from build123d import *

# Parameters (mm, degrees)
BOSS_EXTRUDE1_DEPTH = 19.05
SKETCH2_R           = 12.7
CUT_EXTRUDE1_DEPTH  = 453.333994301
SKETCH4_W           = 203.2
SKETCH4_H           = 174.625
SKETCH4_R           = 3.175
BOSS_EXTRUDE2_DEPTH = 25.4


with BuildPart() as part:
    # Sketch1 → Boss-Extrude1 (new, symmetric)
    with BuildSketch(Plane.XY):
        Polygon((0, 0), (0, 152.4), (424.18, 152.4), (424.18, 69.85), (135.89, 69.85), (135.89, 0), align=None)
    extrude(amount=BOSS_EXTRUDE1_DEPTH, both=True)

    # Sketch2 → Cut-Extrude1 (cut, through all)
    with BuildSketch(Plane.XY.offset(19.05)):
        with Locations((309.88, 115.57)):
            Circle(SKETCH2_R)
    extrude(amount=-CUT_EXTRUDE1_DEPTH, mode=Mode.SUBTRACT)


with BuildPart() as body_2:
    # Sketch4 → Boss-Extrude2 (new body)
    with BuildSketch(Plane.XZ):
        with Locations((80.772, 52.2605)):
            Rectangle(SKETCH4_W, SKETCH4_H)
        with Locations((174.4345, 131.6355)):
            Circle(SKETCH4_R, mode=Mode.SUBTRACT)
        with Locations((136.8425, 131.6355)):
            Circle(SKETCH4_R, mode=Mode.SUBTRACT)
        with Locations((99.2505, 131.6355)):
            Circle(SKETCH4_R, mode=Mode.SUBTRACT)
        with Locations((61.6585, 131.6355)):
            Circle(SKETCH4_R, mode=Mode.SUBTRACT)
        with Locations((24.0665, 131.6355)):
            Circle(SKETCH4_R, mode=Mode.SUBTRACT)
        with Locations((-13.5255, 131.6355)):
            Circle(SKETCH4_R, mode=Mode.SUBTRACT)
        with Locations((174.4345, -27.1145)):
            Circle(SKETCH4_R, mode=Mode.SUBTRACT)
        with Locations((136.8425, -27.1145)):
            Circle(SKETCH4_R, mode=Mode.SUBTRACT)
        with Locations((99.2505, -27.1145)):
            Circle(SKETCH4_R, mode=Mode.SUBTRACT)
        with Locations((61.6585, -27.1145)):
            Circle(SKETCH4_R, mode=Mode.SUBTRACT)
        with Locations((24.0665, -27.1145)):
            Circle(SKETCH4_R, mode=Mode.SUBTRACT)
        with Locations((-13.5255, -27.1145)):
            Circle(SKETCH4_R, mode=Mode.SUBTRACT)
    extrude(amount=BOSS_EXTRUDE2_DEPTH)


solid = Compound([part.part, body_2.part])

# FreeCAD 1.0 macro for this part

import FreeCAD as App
import Part
import Sketcher

V = App.Vector
Q = App.Units.Quantity


def add_polygon(sketch, points):
    """Adds a closed chain of lines whose ends are joined by coincident constraints."""
    first, n = sketch.GeometryCount, len(points)
    for a, b in zip(points, points[1:] + points[:1]):
        sketch.addGeometry(Part.LineSegment(App.Vector(*a, 0), App.Vector(*b, 0)), False)
    for i in range(n):
        sketch.addConstraint(Sketcher.Constraint("Coincident", first + i, 2, first + (i + 1) % n, 1))

doc = App.newDocument("Part")
params = doc.addObject("Spreadsheet::Sheet", "Params")
for row, (alias, value) in enumerate([
    ("sketch1_height", "6 in"),
    ("sketch1_width", "16.7 in"),
    ("sketch1_width2", "5.35 in"),
    ("sketch1_height2", "2.75 in"),
    ("pad1_length", "1.5 in"),
    ("sketch2_diameter", "1 in"),
    ("sketch3_diameter", "0.25 in"),
    ("sketch3_width", "8 in"),
    ("sketch3_height", "6.875 in"),
    ("pad2_length", "1 in"),
], start=1):
    params.set(f"A{row}", alias)
    params.set(f"B{row}", "=" + value)
    params.setAlias(f"B{row}", alias)

body = doc.addObject("PartDesign::Body", "Body")

sketch1 = body.newObject("Sketcher::SketchObject", "Sketch")
sketch1.AttachmentSupport = (doc.getObject("XY_Plane"), [""])
sketch1.MapMode = "FlatFace"
add_polygon(sketch1, [(0, 152), (0, 0), (136, 0), (136, 70), (424, 70), (424, 152)])
sketch1.addConstraint([
    Sketcher.Constraint("Vertical", 0),
    Sketcher.Constraint("Horizontal", 1),
    Sketcher.Constraint("Vertical", 2),
    Sketcher.Constraint("Horizontal", 3),
    Sketcher.Constraint("Vertical", 4),
    Sketcher.Constraint("Horizontal", 5),
    Sketcher.Constraint("Coincident", 0, 2, -1, 1),
    Sketcher.Constraint("DistanceY", 0, 2, 0, 1, Q("6 in")),
    Sketcher.Constraint("DistanceX", 5, 2, 5, 1, Q("16.7 in")),
    Sketcher.Constraint("DistanceX", 1, 1, 1, 2, Q("5.35 in")),
    Sketcher.Constraint("DistanceY", 2, 1, 2, 2, Q("2.75 in")),
])
sketch1.setExpression("Constraints[13]", "Params.sketch1_height")
sketch1.setExpression("Constraints[14]", "Params.sketch1_width")
sketch1.setExpression("Constraints[15]", "Params.sketch1_width2")
sketch1.setExpression("Constraints[16]", "Params.sketch1_height2")
pad1 = body.newObject("PartDesign::Pad", "Pad")
pad1.Profile = sketch1
pad1.setExpression("Length", "Params.pad1_length")
pad1.Midplane = True

sketch2 = body.newObject("Sketcher::SketchObject", "Sketch001")
sketch2.AttachmentSupport = (doc.getObject("XY_Plane"), [""])
sketch2.MapMode = "FlatFace"
sketch2.AttachmentOffset = App.Placement(V(0, 0, 0.75 * 25.4), App.Rotation())
sketch2.addGeometry(Part.Circle(V(310, 116, 0), V(0, 0, 1), 13), False)
sketch2.addConstraint([
    Sketcher.Constraint("Diameter", 0, Q("1 in")),
    Sketcher.Constraint("DistanceX", -1, 1, 0, 3, Q("12.2 in")),
    Sketcher.Constraint("DistanceY", -1, 1, 0, 3, Q("4.55 in")),
])
sketch2.setExpression("Constraints[0]", "Params.sketch2_diameter")
pocket1 = body.newObject("PartDesign::Pocket", "Pocket")
pocket1.Profile = sketch2
pocket1.Type = "ThroughAll"
body2 = doc.addObject("PartDesign::Body", "Body001")

sketch3 = body2.newObject("Sketcher::SketchObject", "Sketch002")
sketch3.AttachmentSupport = (doc.getObject("XZ_Plane001"), [""])
sketch3.MapMode = "FlatFace"
add_polygon(sketch3, [(-20.8, 139.6), (-20.8, -35.1), (182.4, -35.1), (182.4, 139.6)])
sketch3.addGeometry(Part.Circle(V(-13.5, -27.1, 0), V(0, 0, 1), 3.2), False)
sketch3.addGeometry(Part.Circle(V(24.1, -27.1, 0), V(0, 0, 1), 3.2), False)
sketch3.addGeometry(Part.Circle(V(61.7, -27.1, 0), V(0, 0, 1), 3.2), False)
sketch3.addGeometry(Part.Circle(V(99.3, -27.1, 0), V(0, 0, 1), 3.2), False)
sketch3.addGeometry(Part.Circle(V(136.8, -27.1, 0), V(0, 0, 1), 3.2), False)
sketch3.addGeometry(Part.Circle(V(174.4, -27.1, 0), V(0, 0, 1), 3.2), False)
sketch3.addGeometry(Part.Circle(V(-13.5, 131.6, 0), V(0, 0, 1), 3.2), False)
sketch3.addGeometry(Part.Circle(V(24.1, 131.6, 0), V(0, 0, 1), 3.2), False)
sketch3.addGeometry(Part.Circle(V(61.7, 131.6, 0), V(0, 0, 1), 3.2), False)
sketch3.addGeometry(Part.Circle(V(99.3, 131.6, 0), V(0, 0, 1), 3.2), False)
sketch3.addGeometry(Part.Circle(V(136.8, 131.6, 0), V(0, 0, 1), 3.2), False)
sketch3.addGeometry(Part.Circle(V(174.4, 131.6, 0), V(0, 0, 1), 3.2), False)
sketch3.addConstraint([
    Sketcher.Constraint("Vertical", 0),
    Sketcher.Constraint("Horizontal", 1),
    Sketcher.Constraint("Vertical", 2),
    Sketcher.Constraint("Horizontal", 3),
    Sketcher.Constraint("Equal", 4, 5),
    Sketcher.Constraint("Equal", 5, 6),
    Sketcher.Constraint("Equal", 6, 7),
    Sketcher.Constraint("Equal", 7, 8),
    Sketcher.Constraint("Equal", 8, 9),
    Sketcher.Constraint("Equal", 9, 10),
    Sketcher.Constraint("Equal", 10, 11),
    Sketcher.Constraint("Equal", 11, 12),
    Sketcher.Constraint("Equal", 12, 13),
    Sketcher.Constraint("Equal", 13, 14),
    Sketcher.Constraint("Equal", 14, 15),
    Sketcher.Constraint("Horizontal", 4, 3, 5, 3),
    Sketcher.Constraint("Horizontal", 5, 3, 6, 3),
    Sketcher.Constraint("Horizontal", 6, 3, 7, 3),
    Sketcher.Constraint("Horizontal", 7, 3, 8, 3),
    Sketcher.Constraint("Horizontal", 8, 3, 9, 3),
    Sketcher.Constraint("Horizontal", 10, 3, 11, 3),
    Sketcher.Constraint("Horizontal", 11, 3, 12, 3),
    Sketcher.Constraint("Horizontal", 12, 3, 13, 3),
    Sketcher.Constraint("Horizontal", 13, 3, 14, 3),
    Sketcher.Constraint("Horizontal", 14, 3, 15, 3),
    Sketcher.Constraint("Vertical", 4, 3, 10, 3),
    Sketcher.Constraint("Vertical", 5, 3, 11, 3),
    Sketcher.Constraint("Vertical", 6, 3, 12, 3),
    Sketcher.Constraint("Vertical", 7, 3, 13, 3),
    Sketcher.Constraint("Vertical", 8, 3, 14, 3),
    Sketcher.Constraint("Vertical", 9, 3, 15, 3),
    Sketcher.Constraint("Diameter", 4, Q("0.25 in")),
    Sketcher.Constraint("DistanceX", 1, 1, 1, 2, Q("8 in")),
    Sketcher.Constraint("DistanceX", 4, 3, 9, 3, Q("7.4 in")),
    Sketcher.Constraint("DistanceY", 0, 2, 0, 1, Q("6.875 in")),
    Sketcher.Constraint("DistanceX", 0, 2, -1, 1, Q("0.82 in")),
    Sketcher.Constraint("DistanceY", 0, 2, -1, 1, Q("1.38 in")),
    Sketcher.Constraint("DistanceX", 4, 3, 5, 3, Q("1.48 in")),
    Sketcher.Constraint("DistanceX", 5, 3, 6, 3, Q("1.48 in")),
    Sketcher.Constraint("DistanceX", 6, 3, 7, 3, Q("1.48 in")),
    Sketcher.Constraint("DistanceX", 7, 3, 8, 3, Q("1.48 in")),
    Sketcher.Constraint("DistanceY", 4, 3, 10, 3, Q("6.25 in")),
    Sketcher.Constraint("DistanceY", 0, 2, 4, 3, Q("0.3125 in")),
    Sketcher.Constraint("DistanceX", 9, 3, 1, 2, Q("0.3125 in")),
])
sketch3.setExpression("Constraints[35]", "Params.sketch3_diameter")
sketch3.setExpression("Constraints[36]", "Params.sketch3_width")
sketch3.setExpression("Constraints[38]", "Params.sketch3_height")
pad2 = body2.newObject("PartDesign::Pad", "Pad001")
pad2.Profile = sketch3
pad2.setExpression("Length", "Params.pad2_length")

doc.recompute()
